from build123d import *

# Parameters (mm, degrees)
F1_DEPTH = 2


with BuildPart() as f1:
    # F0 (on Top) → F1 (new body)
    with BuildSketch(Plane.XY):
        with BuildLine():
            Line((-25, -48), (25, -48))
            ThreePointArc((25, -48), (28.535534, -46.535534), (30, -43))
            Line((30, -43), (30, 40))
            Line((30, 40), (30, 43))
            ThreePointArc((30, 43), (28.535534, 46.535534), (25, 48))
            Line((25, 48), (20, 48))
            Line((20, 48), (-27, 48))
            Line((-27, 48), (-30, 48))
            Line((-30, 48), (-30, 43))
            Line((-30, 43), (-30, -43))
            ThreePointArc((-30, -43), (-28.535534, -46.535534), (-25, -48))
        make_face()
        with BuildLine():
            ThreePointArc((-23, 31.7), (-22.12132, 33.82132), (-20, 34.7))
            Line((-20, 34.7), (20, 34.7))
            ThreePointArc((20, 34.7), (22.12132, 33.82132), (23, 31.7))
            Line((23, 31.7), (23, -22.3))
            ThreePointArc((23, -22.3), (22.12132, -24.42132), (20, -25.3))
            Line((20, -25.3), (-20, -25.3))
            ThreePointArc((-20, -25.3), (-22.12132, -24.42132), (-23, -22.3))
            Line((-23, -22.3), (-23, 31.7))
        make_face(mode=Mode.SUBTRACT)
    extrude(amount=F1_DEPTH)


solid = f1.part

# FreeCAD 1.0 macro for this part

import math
import FreeCAD as App
import Part
import Sketcher
Q = App.Units.Quantity

doc = App.newDocument("Part")
body = doc.addObject("PartDesign::Body", "Body")

# Sketch on XY plane
sketch1 = body.newObject("Sketcher::SketchObject", "Sketch")
sketch1.AttachmentSupport = (doc.getObject("XY_Plane"), [""])
sketch1.MapMode = "FlatFace"
sketch1.addGeometry([
    Part.LineSegment(App.Vector(-25, -48, 0), App.Vector(25, -48, 0)),  # 0
    Part.ArcOfCircle(Part.Circle(App.Vector(25, -43, 0), App.Vector(0, 0, 1), 5), math.radians(-90), math.radians(0)),  # 1
    Part.LineSegment(App.Vector(30, -43, 0), App.Vector(30, 43, 0)),  # 2
    Part.ArcOfCircle(Part.Circle(App.Vector(25, 43, 0), App.Vector(0, 0, 1), 5), math.radians(0), math.radians(90)),  # 3
    Part.LineSegment(App.Vector(25, 48, 0), App.Vector(-30, 48, 0)),  # 4
    Part.LineSegment(App.Vector(-30, 48, 0), App.Vector(-30, -43, 0)),  # 5
    Part.ArcOfCircle(Part.Circle(App.Vector(-25, -43, 0), App.Vector(0, 0, 1), 5), math.radians(180), math.radians(270)),  # 6
    Part.LineSegment(App.Vector(-23, -22.3, 0), App.Vector(-23, 31.7, 0)),  # 7
    Part.ArcOfCircle(Part.Circle(App.Vector(-20, 31.7, 0), App.Vector(0, 0, 1), 3), math.radians(90), math.radians(180)),  # 8
    Part.LineSegment(App.Vector(-20, 34.7, 0), App.Vector(20, 34.7, 0)),  # 9
    Part.ArcOfCircle(Part.Circle(App.Vector(20, 31.7, 0), App.Vector(0, 0, 1), 3), math.radians(0), math.radians(90)),  # 10
    Part.LineSegment(App.Vector(23, 31.7, 0), App.Vector(23, -22.3, 0)),  # 11
    Part.ArcOfCircle(Part.Circle(App.Vector(20, -22.3, 0), App.Vector(0, 0, 1), 3), math.radians(-90), math.radians(0)),  # 12
    Part.LineSegment(App.Vector(20, -25.3, 0), App.Vector(-20, -25.3, 0)),  # 13
    Part.ArcOfCircle(Part.Circle(App.Vector(-20, -22.3, 0), App.Vector(0, 0, 1), 3), math.radians(-180), math.radians(-90)),  # 14
], False)
sketch1.addConstraint([
    Sketcher.Constraint("Tangent", 0, 2, 1, 1),
    Sketcher.Constraint("Tangent", 1, 2, 2, 1),
    Sketcher.Constraint("Tangent", 2, 2, 3, 1),
    Sketcher.Constraint("Tangent", 3, 2, 4, 1),
    Sketcher.Constraint("Coincident", 4, 2, 5, 1),
    Sketcher.Constraint("Tangent", 5, 2, 6, 1),
    Sketcher.Constraint("Tangent", 6, 2, 0, 1),
    Sketcher.Constraint("Tangent", 7, 2, 8, 2),
    Sketcher.Constraint("Tangent", 8, 1, 9, 1),
    Sketcher.Constraint("Tangent", 9, 2, 10, 2),
    Sketcher.Constraint("Tangent", 10, 1, 11, 1),
    Sketcher.Constraint("Tangent", 11, 2, 12, 2),
    Sketcher.Constraint("Tangent", 12, 1, 13, 1),
    Sketcher.Constraint("Tangent", 13, 2, 14, 2),
    Sketcher.Constraint("Tangent", 14, 1, 7, 1),
    Sketcher.Constraint("Horizontal", 0),
    Sketcher.Constraint("Vertical", 2),
    Sketcher.Constraint("Horizontal", 4),
    Sketcher.Constraint("Vertical", 5),
    Sketcher.Constraint("Vertical", 7),
    Sketcher.Constraint("Horizontal", 9),
    Sketcher.Constraint("Vertical", 11),
    Sketcher.Constraint("Horizontal", 13),
    Sketcher.Constraint("Equal", 1, 3),
    Sketcher.Constraint("Equal", 3, 6),
    Sketcher.Constraint("Equal", 8, 10),
    Sketcher.Constraint("Equal", 10, 12),
    Sketcher.Constraint("Equal", 12, 14),
    Sketcher.Constraint("Symmetric", 3, 3, 6, 3, -1, 1),
    Sketcher.Constraint("Radius", 1, Q("5 mm")),
    Sketcher.Constraint("Radius", 8, Q("3.000001 mm")),
    Sketcher.Constraint("DistanceX", 0, 1, 0, 2, Q("50 mm")),
    Sketcher.Constraint("DistanceX", 9, 1, 9, 2, Q("40 mm")),
    Sketcher.Constraint("DistanceY", 2, 1, 2, 2, Q("86 mm")),
    Sketcher.Constraint("DistanceY", 7, 1, 7, 2, Q("54 mm")),
    Sketcher.Constraint("DistanceX", 8, 3, -1, 1, Q("19.999999 mm")),
    Sketcher.Constraint("DistanceY", -1, 1, 8, 3, Q("31.699999 mm")),
])
pad1 = body.newObject("PartDesign::Pad", "Pad")
pad1.Profile = sketch1
pad1.Length = 2

doc.recompute()
